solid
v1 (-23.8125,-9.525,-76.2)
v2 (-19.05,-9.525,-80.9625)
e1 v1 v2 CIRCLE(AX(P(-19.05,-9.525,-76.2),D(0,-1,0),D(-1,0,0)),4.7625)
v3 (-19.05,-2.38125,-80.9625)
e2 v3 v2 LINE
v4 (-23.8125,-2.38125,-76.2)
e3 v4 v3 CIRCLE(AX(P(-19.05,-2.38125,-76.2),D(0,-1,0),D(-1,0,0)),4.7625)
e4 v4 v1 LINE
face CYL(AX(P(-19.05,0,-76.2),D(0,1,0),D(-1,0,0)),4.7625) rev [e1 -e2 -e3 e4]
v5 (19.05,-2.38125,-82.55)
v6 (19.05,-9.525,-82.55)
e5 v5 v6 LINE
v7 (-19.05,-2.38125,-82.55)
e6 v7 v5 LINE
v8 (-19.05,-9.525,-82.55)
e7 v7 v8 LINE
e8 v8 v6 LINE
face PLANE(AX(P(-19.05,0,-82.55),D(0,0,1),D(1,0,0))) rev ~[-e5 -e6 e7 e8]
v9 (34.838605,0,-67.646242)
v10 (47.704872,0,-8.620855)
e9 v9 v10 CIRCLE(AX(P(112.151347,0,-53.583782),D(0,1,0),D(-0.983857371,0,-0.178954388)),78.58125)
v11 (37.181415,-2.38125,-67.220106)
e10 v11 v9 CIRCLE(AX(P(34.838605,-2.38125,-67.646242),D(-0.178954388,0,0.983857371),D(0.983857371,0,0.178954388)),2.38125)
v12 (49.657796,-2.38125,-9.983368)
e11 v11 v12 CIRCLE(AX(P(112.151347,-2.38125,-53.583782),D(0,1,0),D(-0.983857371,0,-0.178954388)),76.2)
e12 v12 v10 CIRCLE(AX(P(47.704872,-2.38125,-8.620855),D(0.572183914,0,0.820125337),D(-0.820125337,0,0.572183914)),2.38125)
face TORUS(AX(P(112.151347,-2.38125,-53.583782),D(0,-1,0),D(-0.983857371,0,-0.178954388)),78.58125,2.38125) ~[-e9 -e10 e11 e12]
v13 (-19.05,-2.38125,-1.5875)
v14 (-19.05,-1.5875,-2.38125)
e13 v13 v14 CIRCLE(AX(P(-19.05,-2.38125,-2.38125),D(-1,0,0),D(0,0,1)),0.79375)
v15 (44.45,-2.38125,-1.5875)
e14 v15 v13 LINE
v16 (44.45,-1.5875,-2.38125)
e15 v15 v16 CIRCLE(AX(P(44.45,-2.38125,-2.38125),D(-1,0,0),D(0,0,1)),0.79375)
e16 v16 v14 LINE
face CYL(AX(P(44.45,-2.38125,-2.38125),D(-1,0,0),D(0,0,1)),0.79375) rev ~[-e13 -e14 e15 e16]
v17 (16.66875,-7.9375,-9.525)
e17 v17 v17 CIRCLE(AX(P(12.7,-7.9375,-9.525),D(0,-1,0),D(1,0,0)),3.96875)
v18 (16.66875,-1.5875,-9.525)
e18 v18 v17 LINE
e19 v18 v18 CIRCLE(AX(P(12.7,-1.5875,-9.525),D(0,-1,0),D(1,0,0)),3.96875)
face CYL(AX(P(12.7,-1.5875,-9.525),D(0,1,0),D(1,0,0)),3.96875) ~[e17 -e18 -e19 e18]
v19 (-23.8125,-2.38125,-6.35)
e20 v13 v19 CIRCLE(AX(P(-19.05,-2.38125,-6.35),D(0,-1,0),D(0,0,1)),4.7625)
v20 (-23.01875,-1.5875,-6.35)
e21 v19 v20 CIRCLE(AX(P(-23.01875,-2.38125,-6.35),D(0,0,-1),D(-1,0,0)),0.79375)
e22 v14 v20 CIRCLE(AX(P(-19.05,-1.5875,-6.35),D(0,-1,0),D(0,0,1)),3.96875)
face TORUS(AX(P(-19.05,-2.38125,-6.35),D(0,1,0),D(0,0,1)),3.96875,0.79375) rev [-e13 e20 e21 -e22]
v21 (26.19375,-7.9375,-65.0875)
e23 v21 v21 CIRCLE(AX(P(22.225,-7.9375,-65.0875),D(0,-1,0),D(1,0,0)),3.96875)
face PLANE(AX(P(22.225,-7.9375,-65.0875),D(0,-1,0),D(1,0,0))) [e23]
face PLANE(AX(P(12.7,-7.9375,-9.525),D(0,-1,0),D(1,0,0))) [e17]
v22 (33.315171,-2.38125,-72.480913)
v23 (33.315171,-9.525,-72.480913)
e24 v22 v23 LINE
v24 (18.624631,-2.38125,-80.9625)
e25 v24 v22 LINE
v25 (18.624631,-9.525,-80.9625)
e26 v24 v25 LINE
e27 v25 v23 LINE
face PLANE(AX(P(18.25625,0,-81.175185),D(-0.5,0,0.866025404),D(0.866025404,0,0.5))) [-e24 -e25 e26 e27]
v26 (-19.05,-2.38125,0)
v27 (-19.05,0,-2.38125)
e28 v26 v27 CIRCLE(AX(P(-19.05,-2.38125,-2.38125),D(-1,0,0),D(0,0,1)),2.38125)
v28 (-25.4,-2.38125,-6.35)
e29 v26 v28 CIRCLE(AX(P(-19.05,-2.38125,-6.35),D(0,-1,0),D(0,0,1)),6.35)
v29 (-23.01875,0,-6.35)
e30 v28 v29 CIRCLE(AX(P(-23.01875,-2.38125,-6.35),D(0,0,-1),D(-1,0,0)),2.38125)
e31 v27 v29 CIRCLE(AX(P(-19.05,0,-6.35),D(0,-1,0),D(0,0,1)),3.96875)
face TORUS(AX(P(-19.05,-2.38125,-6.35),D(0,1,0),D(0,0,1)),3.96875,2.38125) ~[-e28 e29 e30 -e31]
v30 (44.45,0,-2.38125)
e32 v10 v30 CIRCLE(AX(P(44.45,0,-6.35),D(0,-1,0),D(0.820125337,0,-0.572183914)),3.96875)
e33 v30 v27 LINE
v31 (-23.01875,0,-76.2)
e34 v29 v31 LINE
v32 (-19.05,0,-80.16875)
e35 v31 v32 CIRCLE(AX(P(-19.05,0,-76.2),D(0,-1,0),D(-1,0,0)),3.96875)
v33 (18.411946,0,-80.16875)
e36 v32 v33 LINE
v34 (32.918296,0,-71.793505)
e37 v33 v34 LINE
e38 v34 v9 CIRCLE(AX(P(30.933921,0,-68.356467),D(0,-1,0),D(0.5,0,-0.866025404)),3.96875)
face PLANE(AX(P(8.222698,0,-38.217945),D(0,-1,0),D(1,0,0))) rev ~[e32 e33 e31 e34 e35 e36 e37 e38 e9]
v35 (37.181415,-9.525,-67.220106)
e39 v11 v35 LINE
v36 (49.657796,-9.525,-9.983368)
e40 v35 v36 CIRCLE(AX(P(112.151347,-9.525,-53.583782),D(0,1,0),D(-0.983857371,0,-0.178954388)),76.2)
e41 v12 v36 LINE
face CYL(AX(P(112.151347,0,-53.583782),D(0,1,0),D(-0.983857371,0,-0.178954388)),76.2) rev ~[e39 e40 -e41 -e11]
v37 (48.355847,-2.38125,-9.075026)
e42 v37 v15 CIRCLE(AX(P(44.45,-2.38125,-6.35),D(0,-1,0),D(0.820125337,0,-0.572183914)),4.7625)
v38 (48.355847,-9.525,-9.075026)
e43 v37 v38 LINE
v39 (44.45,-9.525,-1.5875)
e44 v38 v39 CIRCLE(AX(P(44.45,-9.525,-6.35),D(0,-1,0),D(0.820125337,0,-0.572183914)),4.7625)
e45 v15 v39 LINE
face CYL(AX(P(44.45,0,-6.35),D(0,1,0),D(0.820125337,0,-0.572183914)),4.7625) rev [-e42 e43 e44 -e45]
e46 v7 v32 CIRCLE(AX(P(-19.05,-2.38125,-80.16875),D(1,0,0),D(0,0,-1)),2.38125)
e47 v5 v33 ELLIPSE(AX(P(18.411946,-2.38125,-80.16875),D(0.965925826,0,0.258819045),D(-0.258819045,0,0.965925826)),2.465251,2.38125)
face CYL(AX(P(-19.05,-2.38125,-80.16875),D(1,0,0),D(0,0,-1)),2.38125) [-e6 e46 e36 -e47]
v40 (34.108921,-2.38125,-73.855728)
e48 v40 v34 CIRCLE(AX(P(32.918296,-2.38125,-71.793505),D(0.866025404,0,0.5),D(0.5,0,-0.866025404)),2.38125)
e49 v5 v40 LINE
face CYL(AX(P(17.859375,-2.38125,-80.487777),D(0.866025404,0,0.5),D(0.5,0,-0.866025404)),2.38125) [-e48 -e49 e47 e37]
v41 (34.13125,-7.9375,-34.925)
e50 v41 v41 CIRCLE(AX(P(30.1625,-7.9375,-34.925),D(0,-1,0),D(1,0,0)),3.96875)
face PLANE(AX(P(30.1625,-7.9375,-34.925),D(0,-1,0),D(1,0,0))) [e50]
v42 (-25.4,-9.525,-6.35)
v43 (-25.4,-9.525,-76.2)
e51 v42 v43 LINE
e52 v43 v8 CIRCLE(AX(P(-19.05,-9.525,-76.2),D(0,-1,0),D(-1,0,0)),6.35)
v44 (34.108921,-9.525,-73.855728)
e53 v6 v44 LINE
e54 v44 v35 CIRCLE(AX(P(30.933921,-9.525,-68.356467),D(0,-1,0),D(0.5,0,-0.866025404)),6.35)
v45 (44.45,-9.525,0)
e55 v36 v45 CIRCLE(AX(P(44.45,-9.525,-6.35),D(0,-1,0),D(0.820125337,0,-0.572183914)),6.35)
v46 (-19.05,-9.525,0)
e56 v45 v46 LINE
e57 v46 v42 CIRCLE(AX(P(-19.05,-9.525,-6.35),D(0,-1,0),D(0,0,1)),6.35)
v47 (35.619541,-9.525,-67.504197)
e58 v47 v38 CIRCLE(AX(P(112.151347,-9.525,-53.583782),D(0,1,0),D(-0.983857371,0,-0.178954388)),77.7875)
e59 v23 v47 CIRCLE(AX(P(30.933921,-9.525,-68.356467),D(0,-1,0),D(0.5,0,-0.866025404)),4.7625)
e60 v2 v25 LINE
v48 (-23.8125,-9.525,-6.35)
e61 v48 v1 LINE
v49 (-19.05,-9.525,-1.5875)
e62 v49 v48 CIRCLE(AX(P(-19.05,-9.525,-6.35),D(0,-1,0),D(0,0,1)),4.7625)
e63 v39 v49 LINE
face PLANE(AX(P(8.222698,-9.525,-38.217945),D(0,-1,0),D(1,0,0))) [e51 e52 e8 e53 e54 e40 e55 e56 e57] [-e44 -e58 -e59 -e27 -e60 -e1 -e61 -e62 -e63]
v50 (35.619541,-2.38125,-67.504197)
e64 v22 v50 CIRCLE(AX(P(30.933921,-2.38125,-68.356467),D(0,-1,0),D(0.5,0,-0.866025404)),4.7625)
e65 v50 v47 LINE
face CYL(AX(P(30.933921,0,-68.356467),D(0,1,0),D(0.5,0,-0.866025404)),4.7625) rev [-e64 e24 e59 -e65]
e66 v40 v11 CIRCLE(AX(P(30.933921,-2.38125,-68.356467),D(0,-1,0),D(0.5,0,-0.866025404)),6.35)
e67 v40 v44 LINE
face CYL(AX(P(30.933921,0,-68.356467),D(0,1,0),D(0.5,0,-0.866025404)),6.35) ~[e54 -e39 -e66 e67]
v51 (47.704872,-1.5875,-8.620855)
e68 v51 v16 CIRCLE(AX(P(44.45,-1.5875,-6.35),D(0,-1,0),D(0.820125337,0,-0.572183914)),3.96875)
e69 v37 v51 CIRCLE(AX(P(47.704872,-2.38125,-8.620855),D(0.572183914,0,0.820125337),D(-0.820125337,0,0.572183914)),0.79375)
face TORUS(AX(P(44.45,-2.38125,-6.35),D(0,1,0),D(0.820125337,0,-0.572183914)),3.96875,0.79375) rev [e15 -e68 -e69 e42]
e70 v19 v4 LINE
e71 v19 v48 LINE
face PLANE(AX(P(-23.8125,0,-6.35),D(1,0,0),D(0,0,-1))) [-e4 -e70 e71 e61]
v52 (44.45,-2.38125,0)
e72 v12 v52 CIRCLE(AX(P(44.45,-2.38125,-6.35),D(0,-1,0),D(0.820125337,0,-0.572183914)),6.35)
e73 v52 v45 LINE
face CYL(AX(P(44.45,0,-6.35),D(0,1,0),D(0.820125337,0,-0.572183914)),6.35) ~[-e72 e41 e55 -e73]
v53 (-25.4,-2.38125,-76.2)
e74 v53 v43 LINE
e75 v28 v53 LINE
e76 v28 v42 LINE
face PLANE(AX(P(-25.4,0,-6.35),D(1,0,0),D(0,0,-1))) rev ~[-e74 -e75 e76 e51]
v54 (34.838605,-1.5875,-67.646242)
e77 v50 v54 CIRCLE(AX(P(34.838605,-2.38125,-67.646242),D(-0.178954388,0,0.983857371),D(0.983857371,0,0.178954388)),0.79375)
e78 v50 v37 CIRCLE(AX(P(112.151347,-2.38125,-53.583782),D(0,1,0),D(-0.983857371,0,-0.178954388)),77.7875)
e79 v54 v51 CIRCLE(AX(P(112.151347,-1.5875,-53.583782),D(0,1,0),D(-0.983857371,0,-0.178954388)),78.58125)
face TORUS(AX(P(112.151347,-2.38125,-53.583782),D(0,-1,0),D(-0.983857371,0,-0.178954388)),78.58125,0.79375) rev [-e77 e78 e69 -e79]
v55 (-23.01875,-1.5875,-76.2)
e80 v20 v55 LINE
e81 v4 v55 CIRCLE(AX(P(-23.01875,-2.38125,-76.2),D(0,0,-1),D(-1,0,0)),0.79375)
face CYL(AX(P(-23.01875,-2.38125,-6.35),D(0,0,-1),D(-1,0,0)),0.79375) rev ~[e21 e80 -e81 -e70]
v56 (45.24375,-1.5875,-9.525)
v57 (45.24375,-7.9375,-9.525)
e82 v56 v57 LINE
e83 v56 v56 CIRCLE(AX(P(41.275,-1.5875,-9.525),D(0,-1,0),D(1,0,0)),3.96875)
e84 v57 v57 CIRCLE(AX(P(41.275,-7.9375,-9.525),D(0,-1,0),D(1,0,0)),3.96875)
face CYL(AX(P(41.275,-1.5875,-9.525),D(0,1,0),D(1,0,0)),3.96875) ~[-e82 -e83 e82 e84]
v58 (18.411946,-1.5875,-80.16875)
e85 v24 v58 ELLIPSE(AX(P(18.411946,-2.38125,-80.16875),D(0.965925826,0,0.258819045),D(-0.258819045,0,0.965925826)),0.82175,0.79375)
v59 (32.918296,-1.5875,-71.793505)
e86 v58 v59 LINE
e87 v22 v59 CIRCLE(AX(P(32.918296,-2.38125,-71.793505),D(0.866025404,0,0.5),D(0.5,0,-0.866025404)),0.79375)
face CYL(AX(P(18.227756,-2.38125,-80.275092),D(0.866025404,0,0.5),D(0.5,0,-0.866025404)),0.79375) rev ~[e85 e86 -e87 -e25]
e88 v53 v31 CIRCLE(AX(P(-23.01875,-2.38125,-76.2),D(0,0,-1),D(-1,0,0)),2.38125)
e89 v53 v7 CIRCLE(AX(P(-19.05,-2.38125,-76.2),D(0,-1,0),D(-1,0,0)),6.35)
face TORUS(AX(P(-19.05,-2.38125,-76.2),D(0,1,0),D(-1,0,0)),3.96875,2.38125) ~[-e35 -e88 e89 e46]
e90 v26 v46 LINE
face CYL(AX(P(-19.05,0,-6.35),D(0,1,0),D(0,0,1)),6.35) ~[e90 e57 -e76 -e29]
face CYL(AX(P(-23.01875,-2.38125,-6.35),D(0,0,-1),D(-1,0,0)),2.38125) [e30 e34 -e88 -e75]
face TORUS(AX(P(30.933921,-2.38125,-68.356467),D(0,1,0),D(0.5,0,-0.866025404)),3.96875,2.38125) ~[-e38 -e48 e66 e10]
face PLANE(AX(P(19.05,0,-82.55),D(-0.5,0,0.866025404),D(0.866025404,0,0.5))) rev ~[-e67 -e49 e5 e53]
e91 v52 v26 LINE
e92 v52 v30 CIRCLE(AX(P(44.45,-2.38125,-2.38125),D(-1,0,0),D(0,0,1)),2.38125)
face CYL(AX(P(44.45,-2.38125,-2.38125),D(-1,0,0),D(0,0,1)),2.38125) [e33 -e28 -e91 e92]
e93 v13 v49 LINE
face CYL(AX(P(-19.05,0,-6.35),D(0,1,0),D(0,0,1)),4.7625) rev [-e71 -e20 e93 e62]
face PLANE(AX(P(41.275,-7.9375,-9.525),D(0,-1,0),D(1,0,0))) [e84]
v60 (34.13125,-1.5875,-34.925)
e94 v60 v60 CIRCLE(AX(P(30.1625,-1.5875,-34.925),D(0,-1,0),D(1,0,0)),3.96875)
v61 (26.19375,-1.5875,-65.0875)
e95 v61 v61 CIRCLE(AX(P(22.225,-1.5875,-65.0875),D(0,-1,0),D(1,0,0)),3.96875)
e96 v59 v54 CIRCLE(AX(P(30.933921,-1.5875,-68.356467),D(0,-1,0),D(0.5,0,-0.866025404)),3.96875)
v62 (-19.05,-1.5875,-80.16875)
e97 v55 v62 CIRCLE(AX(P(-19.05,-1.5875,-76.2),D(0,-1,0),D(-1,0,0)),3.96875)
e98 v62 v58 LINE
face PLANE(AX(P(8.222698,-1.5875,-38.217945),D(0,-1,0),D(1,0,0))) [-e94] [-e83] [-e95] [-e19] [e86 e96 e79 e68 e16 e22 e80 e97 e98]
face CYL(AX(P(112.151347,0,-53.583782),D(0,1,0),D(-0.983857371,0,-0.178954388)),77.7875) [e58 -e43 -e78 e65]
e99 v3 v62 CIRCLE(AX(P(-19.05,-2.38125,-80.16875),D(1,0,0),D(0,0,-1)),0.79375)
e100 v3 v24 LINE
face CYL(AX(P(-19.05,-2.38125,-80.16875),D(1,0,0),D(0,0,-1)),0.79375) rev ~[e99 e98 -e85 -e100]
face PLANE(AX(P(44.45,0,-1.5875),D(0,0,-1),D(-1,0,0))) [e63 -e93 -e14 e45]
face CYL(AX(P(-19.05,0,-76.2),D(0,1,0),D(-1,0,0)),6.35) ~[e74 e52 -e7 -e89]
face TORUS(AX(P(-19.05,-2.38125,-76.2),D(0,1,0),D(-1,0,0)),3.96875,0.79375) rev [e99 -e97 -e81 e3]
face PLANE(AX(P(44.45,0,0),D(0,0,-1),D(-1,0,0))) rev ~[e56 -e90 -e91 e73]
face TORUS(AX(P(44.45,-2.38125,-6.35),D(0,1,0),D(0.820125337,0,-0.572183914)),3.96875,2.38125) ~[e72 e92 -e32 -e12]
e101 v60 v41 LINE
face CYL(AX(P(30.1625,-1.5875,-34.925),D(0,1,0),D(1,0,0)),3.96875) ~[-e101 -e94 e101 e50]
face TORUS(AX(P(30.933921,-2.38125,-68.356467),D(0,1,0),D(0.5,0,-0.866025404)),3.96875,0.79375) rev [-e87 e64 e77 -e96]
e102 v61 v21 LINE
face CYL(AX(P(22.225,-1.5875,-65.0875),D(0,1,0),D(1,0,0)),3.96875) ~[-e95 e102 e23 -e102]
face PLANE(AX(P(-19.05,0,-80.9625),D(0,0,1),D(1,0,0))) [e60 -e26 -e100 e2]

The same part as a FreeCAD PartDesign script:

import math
import FreeCAD as App
import Part
import Sketcher

V = App.Vector
Q = App.Units.Quantity


def edges_at(feature, points):
    """Names of the edges that pass closest to the given points."""
    edges = feature.Shape.Edges
    near = lambda p: min(range(len(edges)), key=lambda i: edges[i].distToShape(Part.Vertex(*p))[0])
    return sorted({f"Edge{near(p) + 1}" for p in points})


def faces_at(feature, points):
    """Names of the faces that lie closest to the given points."""
    faces = feature.Shape.Faces
    near = lambda p: min(range(len(faces)), key=lambda i: faces[i].distToShape(Part.Vertex(*p))[0])
    return sorted({f"Face{near(p) + 1}" for p in points})

doc = App.newDocument("Part")
body = doc.addObject("PartDesign::Body", "Body")

# Sketch on XZ plane
sketch1 = body.newObject("Sketcher::SketchObject", "Sketch")
sketch1.AttachmentSupport = (doc.getObject("XZ_Plane"), [""])
sketch1.MapMode = "FlatFace"
sketch1.addGeometry(Part.LineSegment(V(44, 0, 0), V(-19, 0, 0)), False)
sketch1.addGeometry(Part.ArcOfCircle(Part.Circle(V(-19, -6, 0), V(0, 0, 1), 6), math.radians(90), math.radians(180)), False)
sketch1.addGeometry(Part.LineSegment(V(-25, -6, 0), V(-25, -76, 0)), False)
sketch1.addGeometry(Part.ArcOfCircle(Part.Circle(V(-19, -76, 0), V(0, 0, 1), 6), math.radians(180), math.radians(270)), False)
sketch1.addGeometry(Part.LineSegment(V(-19, -83, 0), V(19, -83, 0)), False)
sketch1.addGeometry(Part.LineSegment(V(19, -83, 0), V(34, -74, 0)), False)
sketch1.addGeometry(Part.ArcOfCircle(Part.Circle(V(31, -68, 0), V(0, 0, 1), 6), math.radians(-60), math.radians(10)), False)
sketch1.addGeometry(Part.ArcOfCircle(Part.Circle(V(112, -54, 0), V(0, 0, 1), 76), math.radians(145), math.radians(190)), False)
sketch1.addGeometry(Part.ArcOfCircle(Part.Circle(V(44, -6, 0), V(0, 0, 1), 6), math.radians(-35), math.radians(90)), False)
sketch1.addConstraint(Sketcher.Constraint("Tangent", 0, 2, 1, 1))
sketch1.addConstraint(Sketcher.Constraint("Tangent", 1, 2, 2, 1))
sketch1.addConstraint(Sketcher.Constraint("Tangent", 2, 2, 3, 1))
sketch1.addConstraint(Sketcher.Constraint("Tangent", 3, 2, 4, 1))
sketch1.addConstraint(Sketcher.Constraint("Coincident", 4, 2, 5, 1))
sketch1.addConstraint(Sketcher.Constraint("Tangent", 5, 2, 6, 1))
sketch1.addConstraint(Sketcher.Constraint("Tangent", 6, 2, 7, 2))
sketch1.addConstraint(Sketcher.Constraint("Tangent", 7, 1, 8, 1))
sketch1.addConstraint(Sketcher.Constraint("Tangent", 8, 2, 0, 1))
sketch1.addConstraint(Sketcher.Constraint("Horizontal", 0))
sketch1.addConstraint(Sketcher.Constraint("Vertical", 2))
sketch1.addConstraint(Sketcher.Constraint("Horizontal", 4))
sketch1.addConstraint(Sketcher.Constraint("Equal", 1, 3))
sketch1.addConstraint(Sketcher.Constraint("Equal", 3, 6))
sketch1.addConstraint(Sketcher.Constraint("Equal", 6, 8))
sketch1.addConstraint(Sketcher.Constraint("PointOnObject", 0, 2, -1))
sketch1.addConstraint(Sketcher.Constraint("Radius", 7, Q("3 in")))
sketch1.addConstraint(Sketcher.Constraint("Radius", 1, Q("0.25 in")))
sketch1.addConstraint(Sketcher.Constraint("DistanceX", 0, 2, 0, 1, Q("2.5 in")))
sketch1.addConstraint(Sketcher.Constraint("DistanceX", 4, 1, 4, 2, Q("1.5 in")))
sketch1.addConstraint(Sketcher.Constraint("DistanceY", 3, 3, -1, 1, Q("3 in")))
sketch1.addConstraint(Sketcher.Constraint("DistanceX", 1, 2, -1, 1, Q("1 in")))
sketch1.addConstraint(Sketcher.Constraint("Angle", 5, Q("30 deg")))
sketch1.addConstraint(Sketcher.Constraint("DistanceY", 6, 3, 7, 1, Q("58.373099 mm")))
pad1 = body.newObject("PartDesign::Pad", "Pad")
pad1.Profile = sketch1
pad1.Length = Q("0.375 in")
doc.recompute()

thickness = body.newObject("PartDesign::Thickness", "Thickness")
thickness.Base = (pad1, faces_at(pad1, [(12.7, -9.525, -41.275)]))
thickness.Value = Q("0.0625 in")
thickness.Reversed = True
thickness.Join = "Arc"

# Sketch on XZ plane
sketch2 = body.newObject("Sketcher::SketchObject", "Sketch001")
sketch2.AttachmentSupport = (doc.getObject("XZ_Plane"), [""])
sketch2.MapMode = "FlatFace"
sketch2.AttachmentOffset = App.Placement(V(0, 0, 0.0625 * 25.4), App.Rotation())
sketch2.addGeometry(Part.Circle(V(41.3, -9.5, 0), V(0, 0, 1), 4), False)
sketch2.addGeometry(Part.Circle(V(12.7, -9.5, 0), V(0, 0, 1), 4), False)
sketch2.addGeometry(Part.Circle(V(30.2, -34.9, 0), V(0, 0, 1), 4), False)
sketch2.addGeometry(Part.Circle(V(22.2, -65.1, 0), V(0, 0, 1), 4), False)
sketch2.addConstraint(Sketcher.Constraint("Equal", 0, 1))
sketch2.addConstraint(Sketcher.Constraint("Equal", 1, 2))
sketch2.addConstraint(Sketcher.Constraint("Equal", 2, 3))
sketch2.addConstraint(Sketcher.Constraint("Horizontal", 0, 3, 1, 3))
sketch2.addConstraint(Sketcher.Constraint("Diameter", 0, Q("0.3125 in")))
sketch2.addConstraint(Sketcher.Constraint("DistanceY", 2, 3, 0, 3, Q("1 in")))
sketch2.addConstraint(Sketcher.Constraint("DistanceX", -1, 1, 1, 3, Q("0.5 in")))
sketch2.addConstraint(Sketcher.Constraint("DistanceX", 3, 3, 0, 3, Q("0.75 in")))
sketch2.addConstraint(Sketcher.Constraint("DistanceX", -1, 1, 0, 3, Q("1.625 in")))
sketch2.addConstraint(Sketcher.Constraint("DistanceY", 0, 3, -1, 1, Q("0.375 in")))
sketch2.addConstraint(Sketcher.Constraint("DistanceX", -1, 1, 2, 3, Q("1.1875 in")))
sketch2.addConstraint(Sketcher.Constraint("DistanceY", 3, 3, -1, 1, Q("2.5625 in")))
pad2 = body.newObject("PartDesign::Pad", "Pad001")
pad2.Profile = sketch2
pad2.Length = Q("0.25 in")
doc.recompute()

fillet = body.newObject("PartDesign::Fillet", "Fillet")
fillet.Base = (pad2, edges_at(pad2, [(-23.812, -1.587, -41.275)]))
fillet.Radius = Q("0.03125 in")
doc.recompute()

fillet2 = body.newObject("PartDesign::Fillet", "Fillet001")
fillet2.Base = (fillet, edges_at(fillet, [(37.7, 0, -37.355)]))
fillet2.Radius = Q("0.09375 in")

doc.recompute()
